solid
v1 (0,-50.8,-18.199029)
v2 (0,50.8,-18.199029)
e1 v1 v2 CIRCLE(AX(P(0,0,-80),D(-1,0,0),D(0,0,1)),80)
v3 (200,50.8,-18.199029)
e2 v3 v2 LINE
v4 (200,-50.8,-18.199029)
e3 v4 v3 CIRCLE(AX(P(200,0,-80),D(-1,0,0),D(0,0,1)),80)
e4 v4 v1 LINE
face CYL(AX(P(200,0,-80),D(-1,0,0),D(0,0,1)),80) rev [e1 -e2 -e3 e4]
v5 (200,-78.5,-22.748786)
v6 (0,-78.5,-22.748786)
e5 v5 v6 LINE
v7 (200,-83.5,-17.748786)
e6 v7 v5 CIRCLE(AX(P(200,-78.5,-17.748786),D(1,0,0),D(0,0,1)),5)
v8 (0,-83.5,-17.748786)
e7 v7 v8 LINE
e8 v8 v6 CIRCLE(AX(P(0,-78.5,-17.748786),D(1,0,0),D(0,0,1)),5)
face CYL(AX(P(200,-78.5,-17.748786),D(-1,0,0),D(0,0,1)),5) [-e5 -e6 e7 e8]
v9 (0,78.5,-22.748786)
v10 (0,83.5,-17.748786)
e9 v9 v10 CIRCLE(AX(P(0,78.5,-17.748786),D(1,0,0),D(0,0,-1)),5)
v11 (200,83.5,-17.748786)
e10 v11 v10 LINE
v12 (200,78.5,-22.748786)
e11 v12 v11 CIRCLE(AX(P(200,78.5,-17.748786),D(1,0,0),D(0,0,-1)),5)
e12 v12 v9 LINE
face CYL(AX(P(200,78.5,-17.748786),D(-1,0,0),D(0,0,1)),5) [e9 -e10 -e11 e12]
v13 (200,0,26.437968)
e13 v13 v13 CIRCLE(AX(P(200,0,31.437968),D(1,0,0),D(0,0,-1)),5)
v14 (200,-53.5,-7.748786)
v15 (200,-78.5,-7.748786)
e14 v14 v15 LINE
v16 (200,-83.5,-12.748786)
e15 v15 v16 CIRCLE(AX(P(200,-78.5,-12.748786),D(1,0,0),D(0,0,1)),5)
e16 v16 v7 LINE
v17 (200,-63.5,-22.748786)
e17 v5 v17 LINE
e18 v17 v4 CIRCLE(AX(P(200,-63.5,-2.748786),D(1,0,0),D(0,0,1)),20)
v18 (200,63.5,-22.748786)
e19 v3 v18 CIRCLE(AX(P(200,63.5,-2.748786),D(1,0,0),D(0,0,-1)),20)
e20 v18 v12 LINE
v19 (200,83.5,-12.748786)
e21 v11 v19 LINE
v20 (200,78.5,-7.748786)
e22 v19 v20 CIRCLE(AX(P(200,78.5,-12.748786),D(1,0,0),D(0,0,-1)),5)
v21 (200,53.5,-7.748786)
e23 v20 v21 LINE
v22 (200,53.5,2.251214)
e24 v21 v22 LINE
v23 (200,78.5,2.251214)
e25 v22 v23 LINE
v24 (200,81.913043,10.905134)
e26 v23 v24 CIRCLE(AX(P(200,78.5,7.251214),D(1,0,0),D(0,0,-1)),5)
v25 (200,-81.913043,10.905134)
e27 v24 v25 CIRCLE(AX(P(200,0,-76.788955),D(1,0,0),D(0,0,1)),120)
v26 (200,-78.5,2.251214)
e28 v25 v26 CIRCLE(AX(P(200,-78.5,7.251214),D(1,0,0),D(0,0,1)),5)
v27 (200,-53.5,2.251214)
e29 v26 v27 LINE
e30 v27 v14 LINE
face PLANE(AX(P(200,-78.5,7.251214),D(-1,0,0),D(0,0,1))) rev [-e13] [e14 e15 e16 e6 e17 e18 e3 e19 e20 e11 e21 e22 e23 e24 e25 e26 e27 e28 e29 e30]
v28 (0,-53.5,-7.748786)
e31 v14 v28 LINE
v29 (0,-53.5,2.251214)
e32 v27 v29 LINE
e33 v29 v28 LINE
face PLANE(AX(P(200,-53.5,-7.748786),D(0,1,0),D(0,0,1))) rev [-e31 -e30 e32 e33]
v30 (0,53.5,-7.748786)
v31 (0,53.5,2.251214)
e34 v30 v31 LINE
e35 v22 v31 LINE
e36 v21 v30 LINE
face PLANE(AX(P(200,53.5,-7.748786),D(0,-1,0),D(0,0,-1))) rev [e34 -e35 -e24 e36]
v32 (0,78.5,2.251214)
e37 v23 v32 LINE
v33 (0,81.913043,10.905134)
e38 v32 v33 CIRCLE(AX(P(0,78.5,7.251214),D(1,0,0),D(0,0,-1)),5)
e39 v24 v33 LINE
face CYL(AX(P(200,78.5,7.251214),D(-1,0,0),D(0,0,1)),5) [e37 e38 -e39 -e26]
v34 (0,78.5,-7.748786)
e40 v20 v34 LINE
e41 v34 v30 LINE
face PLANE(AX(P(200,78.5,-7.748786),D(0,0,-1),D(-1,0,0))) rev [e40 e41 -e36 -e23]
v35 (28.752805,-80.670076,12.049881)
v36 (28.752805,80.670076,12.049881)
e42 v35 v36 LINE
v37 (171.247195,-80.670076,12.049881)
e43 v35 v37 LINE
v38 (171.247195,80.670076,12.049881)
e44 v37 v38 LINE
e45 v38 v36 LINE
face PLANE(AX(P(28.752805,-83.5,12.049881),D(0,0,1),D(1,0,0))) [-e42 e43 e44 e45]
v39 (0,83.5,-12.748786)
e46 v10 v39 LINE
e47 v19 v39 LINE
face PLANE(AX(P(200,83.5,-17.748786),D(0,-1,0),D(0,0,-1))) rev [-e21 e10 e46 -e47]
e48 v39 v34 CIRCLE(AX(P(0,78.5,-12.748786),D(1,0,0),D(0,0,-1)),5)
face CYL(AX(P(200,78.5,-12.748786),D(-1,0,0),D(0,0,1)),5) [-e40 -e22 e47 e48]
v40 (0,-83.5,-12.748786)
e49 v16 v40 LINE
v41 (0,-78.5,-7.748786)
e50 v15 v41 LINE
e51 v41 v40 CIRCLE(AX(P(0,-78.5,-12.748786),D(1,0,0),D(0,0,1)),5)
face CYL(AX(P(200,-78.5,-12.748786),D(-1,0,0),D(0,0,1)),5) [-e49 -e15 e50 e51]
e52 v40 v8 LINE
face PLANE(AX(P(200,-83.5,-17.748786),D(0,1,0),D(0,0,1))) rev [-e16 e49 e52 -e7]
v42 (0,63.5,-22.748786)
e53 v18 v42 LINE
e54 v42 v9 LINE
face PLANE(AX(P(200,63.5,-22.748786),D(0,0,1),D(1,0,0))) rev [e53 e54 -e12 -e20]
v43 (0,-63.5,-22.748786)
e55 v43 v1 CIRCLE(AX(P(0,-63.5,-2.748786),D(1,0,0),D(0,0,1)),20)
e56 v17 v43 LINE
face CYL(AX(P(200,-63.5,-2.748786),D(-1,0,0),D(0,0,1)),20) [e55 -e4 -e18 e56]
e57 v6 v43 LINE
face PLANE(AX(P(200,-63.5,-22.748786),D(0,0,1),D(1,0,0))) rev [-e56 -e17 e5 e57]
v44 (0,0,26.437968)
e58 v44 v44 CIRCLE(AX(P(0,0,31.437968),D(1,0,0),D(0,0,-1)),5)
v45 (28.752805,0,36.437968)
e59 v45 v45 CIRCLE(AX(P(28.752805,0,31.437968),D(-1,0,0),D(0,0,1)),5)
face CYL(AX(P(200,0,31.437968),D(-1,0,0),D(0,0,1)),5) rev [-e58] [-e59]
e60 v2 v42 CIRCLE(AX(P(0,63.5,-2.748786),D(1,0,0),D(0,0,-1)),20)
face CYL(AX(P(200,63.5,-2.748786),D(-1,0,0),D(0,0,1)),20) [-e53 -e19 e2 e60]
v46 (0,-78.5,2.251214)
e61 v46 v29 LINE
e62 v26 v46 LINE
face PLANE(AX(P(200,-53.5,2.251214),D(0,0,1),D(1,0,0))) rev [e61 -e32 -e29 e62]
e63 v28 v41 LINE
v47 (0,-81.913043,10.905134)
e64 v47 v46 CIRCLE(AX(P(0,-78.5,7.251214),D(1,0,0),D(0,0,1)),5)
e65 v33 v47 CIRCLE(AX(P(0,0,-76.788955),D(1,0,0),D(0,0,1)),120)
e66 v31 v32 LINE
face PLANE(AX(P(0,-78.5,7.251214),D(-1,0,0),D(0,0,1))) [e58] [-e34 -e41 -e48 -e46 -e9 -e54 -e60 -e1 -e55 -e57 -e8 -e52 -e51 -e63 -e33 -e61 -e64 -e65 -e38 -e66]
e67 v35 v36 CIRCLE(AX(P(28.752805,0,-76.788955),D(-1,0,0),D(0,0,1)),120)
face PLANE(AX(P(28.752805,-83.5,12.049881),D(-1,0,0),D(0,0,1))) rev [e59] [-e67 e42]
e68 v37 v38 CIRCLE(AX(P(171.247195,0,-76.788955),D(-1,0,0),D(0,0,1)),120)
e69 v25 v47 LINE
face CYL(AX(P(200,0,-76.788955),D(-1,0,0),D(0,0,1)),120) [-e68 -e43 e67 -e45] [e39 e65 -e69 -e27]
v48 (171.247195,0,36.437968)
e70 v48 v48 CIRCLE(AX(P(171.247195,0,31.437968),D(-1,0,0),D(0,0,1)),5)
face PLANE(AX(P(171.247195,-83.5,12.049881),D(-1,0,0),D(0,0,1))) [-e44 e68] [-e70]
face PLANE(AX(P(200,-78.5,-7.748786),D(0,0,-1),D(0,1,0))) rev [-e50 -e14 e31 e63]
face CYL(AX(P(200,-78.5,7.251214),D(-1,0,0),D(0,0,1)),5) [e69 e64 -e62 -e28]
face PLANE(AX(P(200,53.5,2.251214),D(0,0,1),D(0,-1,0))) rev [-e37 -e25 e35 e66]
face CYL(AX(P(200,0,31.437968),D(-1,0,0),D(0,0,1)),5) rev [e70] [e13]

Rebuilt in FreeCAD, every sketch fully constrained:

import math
import FreeCAD as App
import Part
import Sketcher
from FreeCAD import Vector
Q = App.Units.Quantity

doc = App.newDocument("Part")
body = doc.addObject("PartDesign::Body", "Body")

# Sketch on YZ plane
sketch1 = body.newObject("Sketcher::SketchObject", "Sketch")
sketch1.AttachmentSupport = (doc.getObject("YZ_Plane"), [""])
sketch1.MapMode = "FlatFace"
sketch1.addGeometry([
    Part.LineSegment(Vector(-78, -23, 0), Vector(-64, -23, 0)),  # 0
    Part.ArcOfCircle(Part.Circle(Vector(-63, -3, 0), Vector(0, 0, 1), 20), math.radians(-90), math.radians(-51)),  # 1
    Part.ArcOfCircle(Part.Circle(Vector(0, -80, 0), Vector(0, 0, 1), 80), math.radians(51), math.radians(129)),  # 2
    Part.ArcOfCircle(Part.Circle(Vector(63, -3, 0), Vector(0, 0, 1), 20), math.radians(-129), math.radians(-90)),  # 3
    Part.LineSegment(Vector(64, -23, 0), Vector(78, -23, 0)),  # 4
    Part.ArcOfCircle(Part.Circle(Vector(78, -18, 0), Vector(0, 0, 1), 5), math.radians(-90), math.radians(0)),  # 5
    Part.LineSegment(Vector(84, -18, 0), Vector(84, -13, 0)),  # 6
    Part.ArcOfCircle(Part.Circle(Vector(78, -13, 0), Vector(0, 0, 1), 5), math.radians(0), math.radians(90)),  # 7
    Part.LineSegment(Vector(78, -8, 0), Vector(54, -8, 0)),  # 8
    Part.LineSegment(Vector(54, -8, 0), Vector(54, 2, 0)),  # 9
    Part.LineSegment(Vector(54, 2, 0), Vector(78, 2, 0)),  # 10
    Part.ArcOfCircle(Part.Circle(Vector(78, 7, 0), Vector(0, 0, 1), 5), math.radians(-90), math.radians(47)),  # 11
    Part.ArcOfCircle(Part.Circle(Vector(0, -77, 0), Vector(0, 0, 1), 120), math.radians(47), math.radians(133)),  # 12
    Part.ArcOfCircle(Part.Circle(Vector(-78, 7, 0), Vector(0, 0, 1), 5), math.radians(133), math.radians(270)),  # 13
    Part.LineSegment(Vector(-78, 2, 0), Vector(-54, 2, 0)),  # 14
    Part.LineSegment(Vector(-54, 2, 0), Vector(-54, -8, 0)),  # 15
    Part.LineSegment(Vector(-54, -8, 0), Vector(-78, -8, 0)),  # 16
    Part.ArcOfCircle(Part.Circle(Vector(-78, -13, 0), Vector(0, 0, 1), 5), math.radians(90), math.radians(180)),  # 17
    Part.LineSegment(Vector(-84, -13, 0), Vector(-84, -18, 0)),  # 18
    Part.ArcOfCircle(Part.Circle(Vector(-78, -18, 0), Vector(0, 0, 1), 5), math.radians(180), math.radians(270)),  # 19
    Part.Circle(Vector(0, 31, 0), Vector(0, 0, 1), 5),  # 20
], False)
sketch1.addConstraint([
    Sketcher.Constraint("Tangent", 0, 2, 1, 1),
    Sketcher.Constraint("Tangent", 1, 2, 2, 2),
    Sketcher.Constraint("Tangent", 2, 1, 3, 1),
    Sketcher.Constraint("Tangent", 3, 2, 4, 1),
    Sketcher.Constraint("Tangent", 4, 2, 5, 1),
    Sketcher.Constraint("Tangent", 5, 2, 6, 1),
    Sketcher.Constraint("Tangent", 6, 2, 7, 1),
    Sketcher.Constraint("Tangent", 7, 2, 8, 1),
    Sketcher.Constraint("Coincident", 8, 2, 9, 1),
    Sketcher.Constraint("Coincident", 9, 2, 10, 1),
    Sketcher.Constraint("Tangent", 10, 2, 11, 1),
    Sketcher.Constraint("Tangent", 11, 2, 12, 1),
    Sketcher.Constraint("Tangent", 12, 2, 13, 1),
    Sketcher.Constraint("Tangent", 13, 2, 14, 1),
    Sketcher.Constraint("Coincident", 14, 2, 15, 1),
    Sketcher.Constraint("Coincident", 15, 2, 16, 1),
    Sketcher.Constraint("Tangent", 16, 2, 17, 1),
    Sketcher.Constraint("Tangent", 17, 2, 18, 1),
    Sketcher.Constraint("Tangent", 18, 2, 19, 1),
    Sketcher.Constraint("Tangent", 19, 2, 0, 1),
    Sketcher.Constraint("Horizontal", 0),
    Sketcher.Constraint("Horizontal", 4),
    Sketcher.Constraint("Vertical", 6),
    Sketcher.Constraint("Horizontal", 8),
    Sketcher.Constraint("Vertical", 9),
    Sketcher.Constraint("Horizontal", 10),
    Sketcher.Constraint("Horizontal", 14),
    Sketcher.Constraint("Vertical", 15),
    Sketcher.Constraint("Horizontal", 16),
    Sketcher.Constraint("Vertical", 18),
    Sketcher.Constraint("Equal", 1, 3),
    Sketcher.Constraint("Equal", 5, 7),
    Sketcher.Constraint("Equal", 7, 11),
    Sketcher.Constraint("Equal", 11, 13),
    Sketcher.Constraint("Equal", 13, 17),
    Sketcher.Constraint("Equal", 17, 19),
    Sketcher.Constraint("Equal", 19, 20),
    Sketcher.Constraint("Symmetric", 1, 3, 3, 3, -2),
    Sketcher.Constraint("Symmetric", 11, 3, 13, 3, -2),
    Sketcher.Constraint("Symmetric", 7, 3, 17, 3, -2),
    Sketcher.Constraint("PointOnObject", 20, 3, -2),
    Sketcher.Constraint("Vertical", 7, 3, 11, 3),
    Sketcher.Constraint("Equal", 10, 14),
    Sketcher.Constraint("Diameter", 20, Q("10 mm")),
    Sketcher.Constraint("Radius", 1, Q("20 mm")),
    Sketcher.Constraint("Radius", 2, Q("80 mm")),
    Sketcher.Constraint("Radius", 12, Q("120 mm")),
    Sketcher.Constraint("DistanceX", 0, 1, 0, 2, Q("15 mm")),
    Sketcher.Constraint("DistanceX", 8, 2, 8, 1, Q("25 mm")),
    Sketcher.Constraint("DistanceY", 6, 1, 6, 2, Q("5 mm")),
    Sketcher.Constraint("DistanceY", 9, 1, 9, 2, Q("10 mm")),
    Sketcher.Constraint("DistanceY", 2, 3, -1, 1, Q("80 mm")),
    Sketcher.Constraint("DistanceX", 1, 3, 3, 3, Q("127 mm")),
    Sketcher.Constraint("DistanceY", -1, 1, 20, 3, Q("31.437968 mm")),
])
pad1 = body.newObject("PartDesign::Pad", "Pad")
pad1.Profile = sketch1
pad1.Length = 200

# Sketch on XZ plane
sketch2 = body.newObject("Sketcher::SketchObject", "Sketch001")
sketch2.AttachmentSupport = (doc.getObject("XZ_Plane"), [""])
sketch2.MapMode = "FlatFace"
sketch2.addGeometry([
    Part.LineSegment(Vector(171, 51, 0), Vector(171, 12, 0)),
    Part.LineSegment(Vector(171, 12, 0), Vector(29, 12, 0)),
    Part.LineSegment(Vector(29, 12, 0), Vector(29, 51, 0)),
    Part.LineSegment(Vector(29, 51, 0), Vector(171, 51, 0)),
], False)
sketch2.addConstraint([
    Sketcher.Constraint("Coincident", 0, 2, 1, 1),
    Sketcher.Constraint("Coincident", 1, 2, 2, 1),
    Sketcher.Constraint("Coincident", 2, 2, 3, 1),
    Sketcher.Constraint("Coincident", 3, 2, 0, 1),
    Sketcher.Constraint("Vertical", 0),
    Sketcher.Constraint("Horizontal", 1),
    Sketcher.Constraint("Vertical", 2),
    Sketcher.Constraint("Horizontal", 3),
    Sketcher.Constraint("DistanceX", 1, 2, 1, 1, Q("142.494389 mm")),
    Sketcher.Constraint("DistanceY", 0, 2, 0, 1, Q("38.776173 mm")),
    Sketcher.Constraint("DistanceY", -1, 1, 0, 2, Q("12.049881 mm")),
    Sketcher.Constraint("DistanceX", -1, 1, 0, 2, Q("171.247195 mm")),
])
pocket1 = body.newObject("PartDesign::Pocket", "Pocket")
pocket1.Profile = sketch2
pocket1.Type = "ThroughAll"
pocket1.Midplane = True

doc.recompute()
